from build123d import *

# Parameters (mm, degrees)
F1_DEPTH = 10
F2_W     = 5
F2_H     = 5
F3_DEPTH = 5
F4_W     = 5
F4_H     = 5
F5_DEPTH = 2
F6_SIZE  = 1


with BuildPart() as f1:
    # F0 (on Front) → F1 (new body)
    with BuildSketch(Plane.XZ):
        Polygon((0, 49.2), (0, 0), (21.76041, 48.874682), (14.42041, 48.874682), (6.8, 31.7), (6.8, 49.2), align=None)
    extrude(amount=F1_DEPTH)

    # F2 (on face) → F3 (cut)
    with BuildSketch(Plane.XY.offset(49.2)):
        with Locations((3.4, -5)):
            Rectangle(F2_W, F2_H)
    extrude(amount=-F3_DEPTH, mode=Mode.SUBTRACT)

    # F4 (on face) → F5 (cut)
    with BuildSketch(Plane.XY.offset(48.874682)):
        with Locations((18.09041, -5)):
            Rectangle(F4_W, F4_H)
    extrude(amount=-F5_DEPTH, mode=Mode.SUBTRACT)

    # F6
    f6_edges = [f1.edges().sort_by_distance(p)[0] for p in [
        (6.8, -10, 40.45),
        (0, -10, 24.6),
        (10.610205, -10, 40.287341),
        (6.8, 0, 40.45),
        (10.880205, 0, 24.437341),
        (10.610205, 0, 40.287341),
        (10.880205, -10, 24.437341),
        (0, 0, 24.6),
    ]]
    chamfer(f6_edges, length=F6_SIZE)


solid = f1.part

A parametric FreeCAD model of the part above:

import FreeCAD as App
import Part
import Sketcher
Q = App.Units.Quantity


def edges_at(feature, points):
    """Names of the edges that pass closest to the given points."""
    edges = feature.Shape.Edges
    near = lambda p: min(range(len(edges)), key=lambda i: edges[i].distToShape(Part.Vertex(*p))[0])
    return sorted({f"Edge{near(p) + 1}" for p in points})


def add_polygon(sketch, points):
    """Adds a closed chain of lines whose ends are joined by coincident constraints."""
    first, n = sketch.GeometryCount, len(points)
    for a, b in zip(points, points[1:] + points[:1]):
        sketch.addGeometry(Part.LineSegment(App.Vector(*a, 0), App.Vector(*b, 0)), False)
    for i in range(n):
        sketch.addConstraint(Sketcher.Constraint("Coincident", first + i, 2, first + (i + 1) % n, 1))

doc = App.newDocument("Part")
params = doc.addObject("Spreadsheet::Sheet", "Params")
for row, (alias, value) in enumerate([
    ("sketch1_width", "6.8 mm"),
    ("sketch1_height", "49.2 mm"),
    ("sketch1_height2", "17.5 mm"),
    ("sketch1_length", "53.5 mm"),
    ("sketch1_width2", "7.34 mm"),
    ("pad1_length", "10 mm"),
    ("sketch2_width", "5 mm"),
    ("pocket1_length", "5 mm"),
    ("sketch3_width", "5 mm"),
    ("pocket2_length", "2 mm"),
    ("chamfer_size", "1 mm"),
], start=1):
    params.set(f"A{row}", alias)
    params.set(f"B{row}", "=" + value)
    params.setAlias(f"B{row}", alias)

body = doc.addObject("PartDesign::Body", "Body")

# Sketch on XZ plane
sketch1 = body.newObject("Sketcher::SketchObject", "Sketch")
sketch1.AttachmentSupport = (doc.getObject("XZ_Plane"), [""])
sketch1.MapMode = "FlatFace"
add_polygon(sketch1, [(0, 49), (0, 0), (22, 49), (14, 49), (7, 32), (7, 49)])  # lines 0-5
sketch1.addConstraint(Sketcher.Constraint("Vertical", 0))
sketch1.addConstraint(Sketcher.Constraint("Horizontal", 2))
sketch1.addConstraint(Sketcher.Constraint("Vertical", 4))
sketch1.addConstraint(Sketcher.Constraint("Horizontal", 5))
sketch1.addConstraint(Sketcher.Constraint("Coincident", 0, 2, -1, 1))
sketch1.addConstraint(Sketcher.Constraint("Angle", 1, Q("66 deg")))
sketch1.addConstraint(Sketcher.Constraint("DistanceX", 5, 2, 5, 1, 6.8))
sketch1.addConstraint(Sketcher.Constraint("DistanceY", 0, 2, 0, 1, 49.2))
sketch1.addConstraint(Sketcher.Constraint("DistanceY", 4, 1, 4, 2, 17.5))
sketch1.addConstraint(Sketcher.Constraint("Distance", 1, 53.5))
sketch1.addConstraint(Sketcher.Constraint("DistanceX", 2, 2, 2, 1, 7.34))
sketch1.setExpression("Constraints[12]", "Params.sketch1_width")
sketch1.setExpression("Constraints[13]", "Params.sketch1_height")
sketch1.setExpression("Constraints[14]", "Params.sketch1_height2")
sketch1.setExpression("Constraints[15]", "Params.sketch1_length")
sketch1.setExpression("Constraints[16]", "Params.sketch1_width2")
pad1 = body.newObject("PartDesign::Pad", "Pad")
pad1.Profile = sketch1
pad1.setExpression("Length", "Params.pad1_length")

# Sketch on XY plane
sketch2 = body.newObject("Sketcher::SketchObject", "Sketch001")
sketch2.AttachmentSupport = (doc.getObject("XY_Plane"), [""])
sketch2.MapMode = "FlatFace"
sketch2.AttachmentOffset = App.Placement(App.Vector(0, 0, 49.2), App.Rotation())
add_polygon(sketch2, [(1, -2), (1, -8), (6, -8), (6, -2)])  # lines 0-3
sketch2.addConstraint(Sketcher.Constraint("Vertical", 0))
sketch2.addConstraint(Sketcher.Constraint("Horizontal", 1))
sketch2.addConstraint(Sketcher.Constraint("Vertical", 2))
sketch2.addConstraint(Sketcher.Constraint("Horizontal", 3))
sketch2.addConstraint(Sketcher.Constraint("Equal", 3, 0))
sketch2.addConstraint(Sketcher.Constraint("DistanceX", 1, 1, 1, 2, 5.0))
sketch2.addConstraint(Sketcher.Constraint("DistanceX", -1, 1, 0, 2, 0.9))
sketch2.addConstraint(Sketcher.Constraint("DistanceY", 0, 2, -1, 1, 7.5))
sketch2.setExpression("Constraints[9]", "Params.sketch2_width")
pocket1 = body.newObject("PartDesign::Pocket", "Pocket")
pocket1.Profile = sketch2
pocket1.setExpression("Length", "Params.pocket1_length")

# Sketch on XY plane
sketch3 = body.newObject("Sketcher::SketchObject", "Sketch002")
sketch3.AttachmentSupport = (doc.getObject("XY_Plane"), [""])
sketch3.MapMode = "FlatFace"
sketch3.AttachmentOffset = App.Placement(App.Vector(0, 0, 48.874682), App.Rotation())
add_polygon(sketch3, [(15.6, -2.5), (15.6, -7.5), (20.6, -7.5), (20.6, -2.5)])  # lines 0-3
sketch3.addConstraint(Sketcher.Constraint("Vertical", 0))
sketch3.addConstraint(Sketcher.Constraint("Horizontal", 1))
sketch3.addConstraint(Sketcher.Constraint("Vertical", 2))
sketch3.addConstraint(Sketcher.Constraint("Horizontal", 3))
sketch3.addConstraint(Sketcher.Constraint("Equal", 3, 0))
sketch3.addConstraint(Sketcher.Constraint("DistanceX", 1, 1, 1, 2, 5.0))
sketch3.addConstraint(Sketcher.Constraint("DistanceY", 0, 2, -1, 1, 7.5))
sketch3.addConstraint(Sketcher.Constraint("DistanceX", -1, 1, 0, 2, 15.59041))
sketch3.setExpression("Constraints[9]", "Params.sketch3_width")
pocket2 = body.newObject("PartDesign::Pocket", "Pocket001")
pocket2.Profile = sketch3
pocket2.setExpression("Length", "Params.pocket2_length")
doc.recompute()

chamfer = body.newObject("PartDesign::Chamfer", "Chamfer")
chamfer.Base = (pocket2, edges_at(pocket2, [
    (6.8, -10, 40.45),
    (0, -10, 24.6),
    (10.61, -10, 40.287),
    (6.8, 0, 40.45),
    (10.88, 0, 24.437),
    (10.61, 0, 40.287),
    (10.88, -10, 24.437),
    (0, 0, 24.6),
]))
chamfer.setExpression("Size", "Params.chamfer_size")

doc.recompute()
